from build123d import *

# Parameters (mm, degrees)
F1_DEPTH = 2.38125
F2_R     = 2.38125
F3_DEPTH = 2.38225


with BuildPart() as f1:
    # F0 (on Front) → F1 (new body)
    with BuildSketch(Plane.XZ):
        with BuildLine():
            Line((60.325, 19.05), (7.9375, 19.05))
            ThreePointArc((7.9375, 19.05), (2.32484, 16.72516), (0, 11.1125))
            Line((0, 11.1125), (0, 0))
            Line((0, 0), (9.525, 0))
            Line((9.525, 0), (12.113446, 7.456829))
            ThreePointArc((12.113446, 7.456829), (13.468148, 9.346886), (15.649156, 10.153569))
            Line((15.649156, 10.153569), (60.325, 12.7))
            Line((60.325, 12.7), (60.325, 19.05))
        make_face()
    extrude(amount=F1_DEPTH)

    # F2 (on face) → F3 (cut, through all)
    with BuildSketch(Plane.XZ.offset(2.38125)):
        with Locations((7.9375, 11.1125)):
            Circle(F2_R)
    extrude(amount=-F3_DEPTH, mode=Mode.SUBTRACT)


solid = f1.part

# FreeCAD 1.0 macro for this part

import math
import FreeCAD as App
import Part
import Sketcher

V = App.Vector
Q = App.Units.Quantity

doc = App.newDocument("Part")
params = doc.addObject("Spreadsheet::Sheet", "Params")
for row, (alias, value) in enumerate([
    ("sketch1_radius", "0.3125 in"),
    ("sketch1_radius2", "0.1562501 in"),
    ("sketch1_height", "0.25 in"),
    ("sketch1_width", "2.0625 in"),
    ("pad1_length", "0.09375 in"),
    ("sketch2_diameter", "0.1875 in"),
], start=1):
    params.set(f"A{row}", alias)
    params.set(f"B{row}", "=" + value)
    params.setAlias(f"B{row}", alias)

body = doc.addObject("PartDesign::Body", "Body")

# Sketch on XZ plane
sketch1 = doc.addObject("Sketcher::SketchObject", "Sketch")
body.addObject(sketch1)
sketch1.AttachmentSupport = (doc.XZ_Plane, [""])
sketch1.MapMode = "FlatFace"
sketch1.addGeometry(Part.LineSegment(V(60.325, 19.05, 0), V(7.9375, 19.05, 0)), False)
sketch1.addGeometry(Part.ArcOfCircle(Part.Circle(V(7.9375, 11.1125, 0), V(0, 0, 1), 7.9375), math.radians(90.000002), math.radians(179.999998)), False)
sketch1.addGeometry(Part.LineSegment(V(0, 11.1125, 0), V(0, 0, 0)), False)
sketch1.addGeometry(Part.LineSegment(V(0, 0, 0), V(9.525, 0, 0)), False)
sketch1.addGeometry(Part.LineSegment(V(9.525, 0, 0), V(12.113446, 7.456829, 0)), False)
sketch1.addGeometry(Part.ArcOfCircle(Part.Circle(V(15.875001, 6.191248, 0), V(0, 0, 1), 3.968752), math.radians(93.262227), math.radians(161.404411)), False)
sketch1.addGeometry(Part.LineSegment(V(15.649156, 10.153569, 0), V(60.325, 12.7, 0)), False)
sketch1.addGeometry(Part.LineSegment(V(60.325, 12.7, 0), V(60.325, 19.05, 0)), False)
sketch1.addConstraint(Sketcher.Constraint("Tangent", 0, 2, 1, 1))
sketch1.addConstraint(Sketcher.Constraint("Tangent", 1, 2, 2, 1))
sketch1.addConstraint(Sketcher.Constraint("Coincident", 2, 2, 3, 1))
sketch1.addConstraint(Sketcher.Constraint("Coincident", 3, 2, 4, 1))
sketch1.addConstraint(Sketcher.Constraint("Coincident", 4, 2, 5, 2))
sketch1.addConstraint(Sketcher.Constraint("Tangent", 5, 1, 6, 1))
sketch1.addConstraint(Sketcher.Constraint("Coincident", 6, 2, 7, 1))
sketch1.addConstraint(Sketcher.Constraint("Coincident", 7, 2, 0, 1))
sketch1.addConstraint(Sketcher.Constraint("Horizontal", 0))
sketch1.addConstraint(Sketcher.Constraint("Vertical", 2))
sketch1.addConstraint(Sketcher.Constraint("Horizontal", 3))
sketch1.addConstraint(Sketcher.Constraint("Vertical", 7))
sketch1.addConstraint(Sketcher.Constraint("Coincident", 2, 2, -1, 1))
sketch1.addConstraint(Sketcher.Constraint("Radius", 1, Q("0.3125 in")))
sketch1.addConstraint(Sketcher.Constraint("Radius", 5, Q("0.1562501 in")))
sketch1.addConstraint(Sketcher.Constraint("DistanceX", 3, 2, 6, 2, Q("2 in")))
sketch1.addConstraint(Sketcher.Constraint("DistanceY", 7, 1, 7, 2, Q("0.25 in")))
sketch1.addConstraint(Sketcher.Constraint("DistanceY", -1, 1, 6, 2, Q("0.5 in")))
sketch1.addConstraint(Sketcher.Constraint("DistanceX", 0, 2, 0, 1, Q("2.0625 in")))
sketch1.addConstraint(Sketcher.Constraint("DistanceX", 3, 2, 5, 3, Q("0.25 in")))
sketch1.addConstraint(Sketcher.Constraint("Distance", 4, 7.893311))
sketch1.addConstraint(Sketcher.Constraint("DistanceY", -1, 1, 5, 3, 6.191248))
sketch1.setExpression("Constraints[13]", "Params.sketch1_radius")
sketch1.setExpression("Constraints[14]", "Params.sketch1_radius2")
sketch1.setExpression("Constraints[16]", "Params.sketch1_height")
sketch1.setExpression("Constraints[18]", "Params.sketch1_width")
pad1 = doc.addObject("PartDesign::Pad", "Pad")
body.addObject(pad1)
pad1.Profile = sketch1
pad1.setExpression("Length", "Params.pad1_length")

# Sketch on XZ plane
sketch2 = doc.addObject("Sketcher::SketchObject", "Sketch001")
body.addObject(sketch2)
sketch2.AttachmentSupport = (doc.XZ_Plane, [""])
sketch2.MapMode = "FlatFace"
sketch2.AttachmentOffset = App.Placement(V(0, 0, 0.09375 * 25.4), App.Rotation())
sketch2.addGeometry(Part.Circle(V(7.9375, 11.1125, 0), V(0, 0, 1), 2.38125), False)
sketch2.addConstraint(Sketcher.Constraint("Diameter", 0, Q("0.1875 in")))
sketch2.addConstraint(Sketcher.Constraint("DistanceX", -1, 1, 0, 3, Q("0.3125 in")))
sketch2.addConstraint(Sketcher.Constraint("DistanceY", -1, 1, 0, 3, Q("0.4375 in")))
sketch2.setExpression("Constraints[0]", "Params.sketch2_diameter")
pocket1 = doc.addObject("PartDesign::Pocket", "Pocket")
body.addObject(pocket1)
pocket1.Profile = sketch2
pocket1.Type = "ThroughAll"

doc.recompute()
